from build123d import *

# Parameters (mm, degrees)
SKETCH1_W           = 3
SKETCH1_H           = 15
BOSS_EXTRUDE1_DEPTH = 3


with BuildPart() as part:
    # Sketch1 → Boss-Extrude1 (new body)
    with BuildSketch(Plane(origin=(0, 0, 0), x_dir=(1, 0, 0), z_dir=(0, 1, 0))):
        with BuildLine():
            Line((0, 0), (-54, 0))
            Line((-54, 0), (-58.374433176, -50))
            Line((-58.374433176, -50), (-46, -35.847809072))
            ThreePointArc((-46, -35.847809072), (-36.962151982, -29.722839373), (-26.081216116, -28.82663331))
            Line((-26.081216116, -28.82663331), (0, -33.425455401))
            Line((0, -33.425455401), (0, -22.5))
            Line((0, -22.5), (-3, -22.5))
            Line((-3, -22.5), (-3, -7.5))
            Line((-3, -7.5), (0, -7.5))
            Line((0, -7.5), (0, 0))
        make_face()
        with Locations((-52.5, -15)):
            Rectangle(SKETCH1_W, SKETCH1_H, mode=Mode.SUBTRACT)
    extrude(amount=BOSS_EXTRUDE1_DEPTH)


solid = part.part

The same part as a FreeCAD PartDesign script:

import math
import FreeCAD as App
import Part
import Sketcher

V = App.Vector
Q = App.Units.Quantity


def add_polygon(sketch, points):
    """Adds a closed chain of lines whose ends are joined by coincident constraints."""
    first, n = sketch.GeometryCount, len(points)
    for a, b in zip(points, points[1:] + points[:1]):
        sketch.addGeometry(Part.LineSegment(App.Vector(*a, 0), App.Vector(*b, 0)), False)
    for i in range(n):
        sketch.addConstraint(Sketcher.Constraint("Coincident", first + i, 2, first + (i + 1) % n, 1))

doc = App.newDocument("Part")
body = doc.addObject("PartDesign::Body", "Body")

# Sketch on XZ plane
sketch1 = body.newObject("Sketcher::SketchObject", "Sketch")
sketch1.AttachmentSupport = (doc.getObject("XZ_Plane"), [""])
sketch1.MapMode = "FlatFace"
sketch1.addGeometry(Part.LineSegment(V(0, 0, 0), V(-54, 0, 0)), False)  # 0
sketch1.addGeometry(Part.LineSegment(V(-54, 0, 0), V(-58.4, 50, 0)), False)  # 1
sketch1.addGeometry(Part.LineSegment(V(-58.4, 50, 0), V(-46, 35.8, 0)), False)  # 2
sketch1.addGeometry(Part.ArcOfCircle(Part.Circle(V(-29.8, 50, 0), V(0, 0, 1), 21.5), math.radians(-139), math.radians(-80)), False)  # 3
sketch1.addGeometry(Part.LineSegment(V(-26.1, 28.8, 0), V(0, 33.4, 0)), False)  # 4
sketch1.addGeometry(Part.LineSegment(V(0, 33.4, 0), V(0, 22.5, 0)), False)  # 5
sketch1.addGeometry(Part.LineSegment(V(0, 22.5, 0), V(-3, 22.5, 0)), False)  # 6
sketch1.addGeometry(Part.LineSegment(V(-3, 22.5, 0), V(-3, 7.5, 0)), False)  # 7
sketch1.addGeometry(Part.LineSegment(V(-3, 7.5, 0), V(0, 7.5, 0)), False)  # 8
sketch1.addGeometry(Part.LineSegment(V(0, 7.5, 0), V(0, 0, 0)), False)  # 9
add_polygon(sketch1, [(-51, 22.5), (-54, 22.5), (-54, 7.5), (-51, 7.5)])  # lines 10-13
sketch1.addConstraint([
    Sketcher.Constraint("Coincident", 0, 2, 1, 1),
    Sketcher.Constraint("Coincident", 1, 2, 2, 1),
    Sketcher.Constraint("Tangent", 2, 2, 3, 1),
    Sketcher.Constraint("Tangent", 3, 2, 4, 1),
    Sketcher.Constraint("Coincident", 4, 2, 5, 1),
    Sketcher.Constraint("Coincident", 5, 2, 6, 1),
    Sketcher.Constraint("Coincident", 6, 2, 7, 1),
    Sketcher.Constraint("Coincident", 7, 2, 8, 1),
    Sketcher.Constraint("Coincident", 8, 2, 9, 1),
    Sketcher.Constraint("Coincident", 9, 2, 0, 1),
    Sketcher.Constraint("Horizontal", 0),
    Sketcher.Constraint("Vertical", 5),
    Sketcher.Constraint("Horizontal", 6),
    Sketcher.Constraint("Vertical", 7),
    Sketcher.Constraint("Horizontal", 8),
    Sketcher.Constraint("Vertical", 9),
    Sketcher.Constraint("Horizontal", 10),
    Sketcher.Constraint("Vertical", 11),
    Sketcher.Constraint("Horizontal", 12),
    Sketcher.Constraint("Vertical", 13),
    Sketcher.Constraint("Coincident", 9, 2, -1, 1),
    Sketcher.Constraint("PointOnObject", 4, 2, -2),
    Sketcher.Constraint("Horizontal", 3, 3, 1, 2),
    Sketcher.Constraint("Horizontal", 6, 2, 10, 2),
    Sketcher.Constraint("Horizontal", 8, 2, 11, 2),
    Sketcher.Constraint("Vertical", 0, 2, 10, 2),
    Sketcher.Constraint("Equal", 8, 10),
    Sketcher.Constraint("Radius", 3, 21.5),
    Sketcher.Constraint("DistanceX", 0, 2, 0, 1, 54.0),
    Sketcher.Constraint("DistanceX", 6, 2, 6, 1, 3.0),
    Sketcher.Constraint("DistanceY", 7, 2, 7, 1, 15.0),
    Sketcher.Constraint("Angle", 1, Q("95 deg")),
    Sketcher.Constraint("Angle", 4, Q("10 deg")),
    Sketcher.Constraint("DistanceY", 9, 2, 9, 1, 7.5),
    Sketcher.Constraint("DistanceY", -1, 1, 3, 3, 50.0),
    Sketcher.Constraint("DistanceX", 2, 2, -1, 1, 46.0),
])
pad1 = body.newObject("PartDesign::Pad", "Pad")
pad1.Profile = sketch1
pad1.Length = 3
pad1.Reversed = True

doc.recompute()
